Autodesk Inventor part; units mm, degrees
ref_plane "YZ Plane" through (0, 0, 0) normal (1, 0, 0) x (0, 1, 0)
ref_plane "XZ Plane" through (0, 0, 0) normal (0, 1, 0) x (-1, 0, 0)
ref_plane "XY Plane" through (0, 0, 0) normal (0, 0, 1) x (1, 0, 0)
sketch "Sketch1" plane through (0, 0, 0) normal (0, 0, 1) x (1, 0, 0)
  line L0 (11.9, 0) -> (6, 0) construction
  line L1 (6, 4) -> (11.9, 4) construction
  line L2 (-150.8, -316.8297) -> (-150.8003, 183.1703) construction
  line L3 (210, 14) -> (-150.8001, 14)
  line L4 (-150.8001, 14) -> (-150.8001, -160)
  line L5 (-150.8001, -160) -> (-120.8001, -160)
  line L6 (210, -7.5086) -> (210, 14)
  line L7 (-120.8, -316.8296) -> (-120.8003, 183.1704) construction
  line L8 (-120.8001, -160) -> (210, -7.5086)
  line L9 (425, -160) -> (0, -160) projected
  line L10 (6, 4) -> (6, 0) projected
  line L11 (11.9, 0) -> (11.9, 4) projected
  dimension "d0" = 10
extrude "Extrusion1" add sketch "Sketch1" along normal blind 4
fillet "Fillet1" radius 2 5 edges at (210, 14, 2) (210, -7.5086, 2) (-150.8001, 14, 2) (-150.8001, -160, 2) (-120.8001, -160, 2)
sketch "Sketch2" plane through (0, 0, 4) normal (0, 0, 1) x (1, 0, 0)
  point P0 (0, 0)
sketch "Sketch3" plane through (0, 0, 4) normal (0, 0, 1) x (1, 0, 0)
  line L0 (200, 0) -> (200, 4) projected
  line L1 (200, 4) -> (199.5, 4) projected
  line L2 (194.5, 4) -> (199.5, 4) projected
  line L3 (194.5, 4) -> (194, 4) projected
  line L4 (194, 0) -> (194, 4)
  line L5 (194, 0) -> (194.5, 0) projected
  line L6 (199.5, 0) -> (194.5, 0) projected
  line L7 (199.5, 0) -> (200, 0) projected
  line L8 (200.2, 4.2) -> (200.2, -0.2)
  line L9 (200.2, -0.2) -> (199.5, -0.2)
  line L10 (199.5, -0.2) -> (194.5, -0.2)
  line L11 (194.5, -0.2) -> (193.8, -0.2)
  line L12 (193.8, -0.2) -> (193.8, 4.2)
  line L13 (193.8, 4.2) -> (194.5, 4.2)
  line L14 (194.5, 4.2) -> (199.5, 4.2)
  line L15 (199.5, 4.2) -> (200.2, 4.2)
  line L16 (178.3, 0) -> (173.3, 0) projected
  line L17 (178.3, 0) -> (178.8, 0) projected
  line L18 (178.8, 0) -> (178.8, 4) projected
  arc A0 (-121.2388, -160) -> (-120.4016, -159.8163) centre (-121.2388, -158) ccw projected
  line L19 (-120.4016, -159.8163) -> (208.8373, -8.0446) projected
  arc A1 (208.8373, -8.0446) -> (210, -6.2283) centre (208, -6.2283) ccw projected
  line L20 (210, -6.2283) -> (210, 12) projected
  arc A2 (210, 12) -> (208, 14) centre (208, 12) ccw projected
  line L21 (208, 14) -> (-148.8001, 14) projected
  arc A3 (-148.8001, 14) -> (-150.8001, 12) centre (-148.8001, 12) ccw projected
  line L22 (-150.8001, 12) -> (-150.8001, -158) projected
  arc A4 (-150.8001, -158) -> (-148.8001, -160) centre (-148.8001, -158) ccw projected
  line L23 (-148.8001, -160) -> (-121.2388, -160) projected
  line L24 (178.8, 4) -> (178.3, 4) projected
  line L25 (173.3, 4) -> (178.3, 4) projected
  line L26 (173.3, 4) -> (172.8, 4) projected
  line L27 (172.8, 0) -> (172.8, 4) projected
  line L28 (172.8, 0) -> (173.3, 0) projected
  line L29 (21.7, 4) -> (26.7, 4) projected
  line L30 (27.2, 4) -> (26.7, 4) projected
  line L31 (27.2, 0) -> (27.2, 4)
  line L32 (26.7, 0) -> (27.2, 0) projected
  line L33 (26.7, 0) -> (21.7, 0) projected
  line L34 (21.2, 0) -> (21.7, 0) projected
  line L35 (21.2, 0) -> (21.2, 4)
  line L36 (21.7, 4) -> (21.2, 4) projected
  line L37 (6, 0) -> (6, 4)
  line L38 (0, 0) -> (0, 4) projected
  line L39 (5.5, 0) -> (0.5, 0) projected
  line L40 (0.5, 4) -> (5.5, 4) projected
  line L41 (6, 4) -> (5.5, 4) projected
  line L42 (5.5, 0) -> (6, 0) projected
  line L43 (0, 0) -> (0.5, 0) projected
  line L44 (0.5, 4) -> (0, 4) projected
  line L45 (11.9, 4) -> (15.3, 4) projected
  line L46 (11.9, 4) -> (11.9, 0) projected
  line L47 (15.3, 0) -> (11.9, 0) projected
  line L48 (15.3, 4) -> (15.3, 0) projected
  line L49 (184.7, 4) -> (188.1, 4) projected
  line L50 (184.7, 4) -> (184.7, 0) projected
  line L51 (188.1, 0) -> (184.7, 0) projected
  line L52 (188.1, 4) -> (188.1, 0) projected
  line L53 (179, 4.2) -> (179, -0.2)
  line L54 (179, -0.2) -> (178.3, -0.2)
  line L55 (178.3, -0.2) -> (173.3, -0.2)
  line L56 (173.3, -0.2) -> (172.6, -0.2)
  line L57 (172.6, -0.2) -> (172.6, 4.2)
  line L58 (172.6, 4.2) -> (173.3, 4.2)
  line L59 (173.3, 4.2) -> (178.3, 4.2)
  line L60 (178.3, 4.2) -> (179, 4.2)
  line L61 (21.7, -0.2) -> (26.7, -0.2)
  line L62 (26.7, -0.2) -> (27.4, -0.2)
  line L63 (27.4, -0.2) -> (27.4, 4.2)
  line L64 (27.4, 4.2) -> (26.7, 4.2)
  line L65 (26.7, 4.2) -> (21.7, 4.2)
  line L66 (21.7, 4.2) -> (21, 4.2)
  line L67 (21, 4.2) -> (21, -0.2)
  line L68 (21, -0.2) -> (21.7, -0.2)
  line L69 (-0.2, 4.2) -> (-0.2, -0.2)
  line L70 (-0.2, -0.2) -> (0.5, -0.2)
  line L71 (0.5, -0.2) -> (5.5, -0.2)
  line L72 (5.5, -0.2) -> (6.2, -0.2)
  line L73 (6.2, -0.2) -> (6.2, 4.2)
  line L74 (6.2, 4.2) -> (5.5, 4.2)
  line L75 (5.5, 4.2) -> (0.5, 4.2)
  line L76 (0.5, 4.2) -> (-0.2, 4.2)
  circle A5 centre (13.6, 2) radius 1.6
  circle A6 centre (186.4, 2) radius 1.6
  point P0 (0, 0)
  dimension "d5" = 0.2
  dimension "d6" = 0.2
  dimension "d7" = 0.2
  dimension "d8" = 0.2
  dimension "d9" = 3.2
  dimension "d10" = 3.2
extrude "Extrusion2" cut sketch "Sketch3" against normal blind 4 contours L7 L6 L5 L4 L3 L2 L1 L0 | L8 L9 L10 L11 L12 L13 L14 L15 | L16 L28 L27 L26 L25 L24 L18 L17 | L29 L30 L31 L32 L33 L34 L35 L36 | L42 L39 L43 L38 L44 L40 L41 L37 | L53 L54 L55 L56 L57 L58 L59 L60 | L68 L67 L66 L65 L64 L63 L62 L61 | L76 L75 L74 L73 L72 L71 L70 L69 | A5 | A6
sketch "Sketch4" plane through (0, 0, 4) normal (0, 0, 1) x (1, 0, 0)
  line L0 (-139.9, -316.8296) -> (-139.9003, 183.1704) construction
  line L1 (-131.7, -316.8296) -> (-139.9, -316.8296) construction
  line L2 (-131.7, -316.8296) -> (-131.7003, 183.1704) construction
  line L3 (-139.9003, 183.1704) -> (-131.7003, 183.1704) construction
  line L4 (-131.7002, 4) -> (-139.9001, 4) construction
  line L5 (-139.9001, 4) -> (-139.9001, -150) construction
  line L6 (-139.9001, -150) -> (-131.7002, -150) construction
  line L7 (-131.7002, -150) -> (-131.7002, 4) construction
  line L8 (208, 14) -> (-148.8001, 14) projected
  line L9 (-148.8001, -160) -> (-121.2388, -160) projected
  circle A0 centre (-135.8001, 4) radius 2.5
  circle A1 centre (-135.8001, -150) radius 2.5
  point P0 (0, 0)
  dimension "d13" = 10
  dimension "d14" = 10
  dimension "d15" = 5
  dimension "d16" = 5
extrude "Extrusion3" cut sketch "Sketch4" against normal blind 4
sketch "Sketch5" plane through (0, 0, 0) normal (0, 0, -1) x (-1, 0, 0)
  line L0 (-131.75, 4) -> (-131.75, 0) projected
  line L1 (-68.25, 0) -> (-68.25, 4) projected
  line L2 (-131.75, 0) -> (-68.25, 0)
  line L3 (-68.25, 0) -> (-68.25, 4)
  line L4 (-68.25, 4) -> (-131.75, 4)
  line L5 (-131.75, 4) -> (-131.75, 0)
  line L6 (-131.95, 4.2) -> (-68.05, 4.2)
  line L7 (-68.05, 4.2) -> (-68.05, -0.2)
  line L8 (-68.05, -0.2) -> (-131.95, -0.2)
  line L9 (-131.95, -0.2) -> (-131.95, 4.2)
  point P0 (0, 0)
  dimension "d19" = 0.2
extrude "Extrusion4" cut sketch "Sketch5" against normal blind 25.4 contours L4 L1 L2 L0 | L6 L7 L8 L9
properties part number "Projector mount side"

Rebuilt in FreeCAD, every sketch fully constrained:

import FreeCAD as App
import Part
import Sketcher

V = App.Vector
Q = App.Units.Quantity


def edges_at(feature, points):
    """Names of the edges that pass closest to the given points."""
    edges = feature.Shape.Edges
    near = lambda p: min(range(len(edges)), key=lambda i: edges[i].distToShape(Part.Vertex(*p))[0])
    return sorted({f"Edge{near(p) + 1}" for p in points})


def add_polygon(sketch, points):
    """Adds a closed chain of lines whose ends are joined by coincident constraints."""
    first, n = sketch.GeometryCount, len(points)
    for a, b in zip(points, points[1:] + points[:1]):
        sketch.addGeometry(Part.LineSegment(App.Vector(*a, 0), App.Vector(*b, 0)), False)
    for i in range(n):
        sketch.addConstraint(Sketcher.Constraint("Coincident", first + i, 2, first + (i + 1) % n, 1))

doc = App.newDocument("Part")
body = doc.addObject("PartDesign::Body", "Body")

sketch1 = body.newObject("Sketcher::SketchObject", "Sketch")
sketch1.AttachmentSupport = (doc.getObject("XY_Plane"), [""])
sketch1.MapMode = "FlatFace"
add_polygon(sketch1, [(210, -7.5086), (210, 14), (-150.8001, 14), (-150.8001, -160), (-120.8001, -160)])
sketch1.addConstraint([
    Sketcher.Constraint("Vertical", 0),
    Sketcher.Constraint("Horizontal", 1),
    Sketcher.Constraint("Vertical", 2),
    Sketcher.Constraint("Horizontal", 3),
    Sketcher.Constraint("DistanceX", 3, 1, 3, 2, Q("30 mm")),
    Sketcher.Constraint("DistanceY", 2, 2, 2, 1, Q("174 mm")),
    Sketcher.Constraint("DistanceX", 1, 2, 1, 1, Q("360.8 mm")),
    Sketcher.Constraint("DistanceX", -1, 1, 0, 2, Q("210 mm")),
    Sketcher.Constraint("DistanceY", -1, 1, 0, 2, Q("14 mm")),
    Sketcher.Constraint("DistanceY", 0, 1, 0, 2, Q("21.5086 mm")),
])
pad1 = body.newObject("PartDesign::Pad", "Pad")
pad1.Profile = sketch1
pad1.Length = 4
doc.recompute()

fillet = body.newObject("PartDesign::Fillet", "Fillet")
fillet.Base = (pad1, edges_at(pad1, [
    (210, 14, 2),
    (210, -7.509, 2),
    (-150.8, 14, 2),
    (-150.8, -160, 2),
    (-120.8, -160, 2),
]))
fillet.Radius = 2

sketch2 = body.newObject("Sketcher::SketchObject", "Sketch001")
sketch2.AttachmentSupport = (doc.getObject("XY_Plane"), [""])
sketch2.MapMode = "FlatFace"
sketch2.AttachmentOffset = App.Placement(V(0, 0, 4), App.Rotation())
add_polygon(sketch2, [(200.2, -0.2), (200.2, 4.2), (193.8, 4.2), (193.8, -0.2)])
add_polygon(sketch2, [(179, -0.2), (179, 4.2), (172.6, 4.2), (172.6, -0.2)])
add_polygon(sketch2, [(21, -0.2), (27.4, -0.2), (27.4, 4.2), (21, 4.2)])
add_polygon(sketch2, [(-0.2, 4.2), (-0.2, -0.2), (6.2, -0.2), (6.2, 4.2)])
sketch2.addGeometry(Part.Circle(V(13.6, 2, 0), V(0, 0, 1), 1.6), False)
sketch2.addGeometry(Part.Circle(V(186.4, 2, 0), V(0, 0, 1), 1.6), False)
sketch2.addConstraint([
    Sketcher.Constraint("Vertical", 0),
    Sketcher.Constraint("Horizontal", 1),
    Sketcher.Constraint("Vertical", 2),
    Sketcher.Constraint("Horizontal", 3),
    Sketcher.Constraint("Vertical", 4),
    Sketcher.Constraint("Horizontal", 5),
    Sketcher.Constraint("Vertical", 6),
    Sketcher.Constraint("Horizontal", 7),
    Sketcher.Constraint("Horizontal", 8),
    Sketcher.Constraint("Vertical", 9),
    Sketcher.Constraint("Horizontal", 10),
    Sketcher.Constraint("Vertical", 11),
    Sketcher.Constraint("Vertical", 12),
    Sketcher.Constraint("Horizontal", 13),
    Sketcher.Constraint("Vertical", 14),
    Sketcher.Constraint("Horizontal", 15),
    Sketcher.Constraint("Equal", 16, 17),
    Sketcher.Constraint("Horizontal", 16, 3, 17, 3),
    Sketcher.Constraint("Horizontal", 1, 2, 4, 2),
    Sketcher.Constraint("Horizontal", 3, 2, 6, 2),
    Sketcher.Constraint("Horizontal", 7, 2, 8, 2),
    Sketcher.Constraint("Horizontal", 5, 2, 9, 2),
    Sketcher.Constraint("Horizontal", 11, 2, 12, 2),
    Sketcher.Constraint("Horizontal", 10, 2, 14, 2),
    Sketcher.Constraint("Equal", 3, 5),
    Sketcher.Constraint("Equal", 7, 8),
    Sketcher.Constraint("Equal", 10, 13),
    Sketcher.Constraint("Diameter", 16, Q("3.2 mm")),
    Sketcher.Constraint("DistanceY", 2, 2, -1, 1, Q("0.2 mm")),
    Sketcher.Constraint("DistanceX", 12, 2, -1, 1, Q("0.2 mm")),
    Sketcher.Constraint("DistanceX", 1, 2, 1, 1, Q("6.4 mm")),
    Sketcher.Constraint("DistanceY", 0, 1, 0, 2, Q("4.4 mm")),
    Sketcher.Constraint("DistanceY", -1, 1, 16, 3, Q("2 mm")),
    Sketcher.Constraint("DistanceX", -1, 1, 4, 2, Q("179 mm")),
    Sketcher.Constraint("DistanceX", -1, 1, 10, 2, Q("21 mm")),
    Sketcher.Constraint("DistanceX", -1, 1, 16, 3, Q("13.6 mm")),
    Sketcher.Constraint("DistanceX", -1, 1, 17, 3, Q("186.4 mm")),
    Sketcher.Constraint("DistanceX", -1, 1, 0, 2, Q("200.2 mm")),
])
pocket1 = body.newObject("PartDesign::Pocket", "Pocket")
pocket1.Profile = sketch2
pocket1.Length = 4

sketch3 = body.newObject("Sketcher::SketchObject", "Sketch002")
sketch3.AttachmentSupport = (doc.getObject("XY_Plane"), [""])
sketch3.MapMode = "FlatFace"
sketch3.AttachmentOffset = App.Placement(V(0, 0, 4), App.Rotation())
sketch3.addGeometry([
    Part.Circle(V(-135.8001, 4, 0), V(0, 0, 1), 2.5),
    Part.Circle(V(-135.8001, -150, 0), V(0, 0, 1), 2.5),
], False)
sketch3.addConstraint([
    Sketcher.Constraint("Equal", 0, 1),
    Sketcher.Constraint("Vertical", 0, 3, 1, 3),
    Sketcher.Constraint("Diameter", 0, Q("5 mm")),
    Sketcher.Constraint("DistanceY", -1, 1, 0, 3, Q("4 mm")),
    Sketcher.Constraint("DistanceY", 1, 3, -1, 1, Q("150 mm")),
    Sketcher.Constraint("DistanceX", 0, 3, -1, 1, Q("135.8 mm")),
])
pocket2 = body.newObject("PartDesign::Pocket", "Pocket001")
pocket2.Profile = sketch3
pocket2.Length = 4

sketch4 = body.newObject("Sketcher::SketchObject", "Sketch003")
sketch4.AttachmentSupport = (doc.getObject("XY_Plane"), [""])
sketch4.MapMode = "FlatFace"
add_polygon(sketch4, [(68.05, 4.2), (131.95, 4.2), (131.95, -0.2), (68.05, -0.2)])
sketch4.addConstraint([
    Sketcher.Constraint("Horizontal", 0),
    Sketcher.Constraint("Vertical", 1),
    Sketcher.Constraint("Horizontal", 2),
    Sketcher.Constraint("Vertical", 3),
    Sketcher.Constraint("DistanceY", 1, 2, -1, 1, Q("0.2 mm")),
    Sketcher.Constraint("DistanceX", 0, 1, 0, 2, Q("63.9 mm")),
    Sketcher.Constraint("DistanceY", 1, 2, 1, 1, Q("4.4 mm")),
    Sketcher.Constraint("DistanceX", -1, 1, 0, 2, Q("131.95 mm")),
])
pocket3 = body.newObject("PartDesign::Pocket", "Pocket002")
pocket3.Profile = sketch4
pocket3.Length = 25.4
pocket3.Reversed = True

doc.recompute()
